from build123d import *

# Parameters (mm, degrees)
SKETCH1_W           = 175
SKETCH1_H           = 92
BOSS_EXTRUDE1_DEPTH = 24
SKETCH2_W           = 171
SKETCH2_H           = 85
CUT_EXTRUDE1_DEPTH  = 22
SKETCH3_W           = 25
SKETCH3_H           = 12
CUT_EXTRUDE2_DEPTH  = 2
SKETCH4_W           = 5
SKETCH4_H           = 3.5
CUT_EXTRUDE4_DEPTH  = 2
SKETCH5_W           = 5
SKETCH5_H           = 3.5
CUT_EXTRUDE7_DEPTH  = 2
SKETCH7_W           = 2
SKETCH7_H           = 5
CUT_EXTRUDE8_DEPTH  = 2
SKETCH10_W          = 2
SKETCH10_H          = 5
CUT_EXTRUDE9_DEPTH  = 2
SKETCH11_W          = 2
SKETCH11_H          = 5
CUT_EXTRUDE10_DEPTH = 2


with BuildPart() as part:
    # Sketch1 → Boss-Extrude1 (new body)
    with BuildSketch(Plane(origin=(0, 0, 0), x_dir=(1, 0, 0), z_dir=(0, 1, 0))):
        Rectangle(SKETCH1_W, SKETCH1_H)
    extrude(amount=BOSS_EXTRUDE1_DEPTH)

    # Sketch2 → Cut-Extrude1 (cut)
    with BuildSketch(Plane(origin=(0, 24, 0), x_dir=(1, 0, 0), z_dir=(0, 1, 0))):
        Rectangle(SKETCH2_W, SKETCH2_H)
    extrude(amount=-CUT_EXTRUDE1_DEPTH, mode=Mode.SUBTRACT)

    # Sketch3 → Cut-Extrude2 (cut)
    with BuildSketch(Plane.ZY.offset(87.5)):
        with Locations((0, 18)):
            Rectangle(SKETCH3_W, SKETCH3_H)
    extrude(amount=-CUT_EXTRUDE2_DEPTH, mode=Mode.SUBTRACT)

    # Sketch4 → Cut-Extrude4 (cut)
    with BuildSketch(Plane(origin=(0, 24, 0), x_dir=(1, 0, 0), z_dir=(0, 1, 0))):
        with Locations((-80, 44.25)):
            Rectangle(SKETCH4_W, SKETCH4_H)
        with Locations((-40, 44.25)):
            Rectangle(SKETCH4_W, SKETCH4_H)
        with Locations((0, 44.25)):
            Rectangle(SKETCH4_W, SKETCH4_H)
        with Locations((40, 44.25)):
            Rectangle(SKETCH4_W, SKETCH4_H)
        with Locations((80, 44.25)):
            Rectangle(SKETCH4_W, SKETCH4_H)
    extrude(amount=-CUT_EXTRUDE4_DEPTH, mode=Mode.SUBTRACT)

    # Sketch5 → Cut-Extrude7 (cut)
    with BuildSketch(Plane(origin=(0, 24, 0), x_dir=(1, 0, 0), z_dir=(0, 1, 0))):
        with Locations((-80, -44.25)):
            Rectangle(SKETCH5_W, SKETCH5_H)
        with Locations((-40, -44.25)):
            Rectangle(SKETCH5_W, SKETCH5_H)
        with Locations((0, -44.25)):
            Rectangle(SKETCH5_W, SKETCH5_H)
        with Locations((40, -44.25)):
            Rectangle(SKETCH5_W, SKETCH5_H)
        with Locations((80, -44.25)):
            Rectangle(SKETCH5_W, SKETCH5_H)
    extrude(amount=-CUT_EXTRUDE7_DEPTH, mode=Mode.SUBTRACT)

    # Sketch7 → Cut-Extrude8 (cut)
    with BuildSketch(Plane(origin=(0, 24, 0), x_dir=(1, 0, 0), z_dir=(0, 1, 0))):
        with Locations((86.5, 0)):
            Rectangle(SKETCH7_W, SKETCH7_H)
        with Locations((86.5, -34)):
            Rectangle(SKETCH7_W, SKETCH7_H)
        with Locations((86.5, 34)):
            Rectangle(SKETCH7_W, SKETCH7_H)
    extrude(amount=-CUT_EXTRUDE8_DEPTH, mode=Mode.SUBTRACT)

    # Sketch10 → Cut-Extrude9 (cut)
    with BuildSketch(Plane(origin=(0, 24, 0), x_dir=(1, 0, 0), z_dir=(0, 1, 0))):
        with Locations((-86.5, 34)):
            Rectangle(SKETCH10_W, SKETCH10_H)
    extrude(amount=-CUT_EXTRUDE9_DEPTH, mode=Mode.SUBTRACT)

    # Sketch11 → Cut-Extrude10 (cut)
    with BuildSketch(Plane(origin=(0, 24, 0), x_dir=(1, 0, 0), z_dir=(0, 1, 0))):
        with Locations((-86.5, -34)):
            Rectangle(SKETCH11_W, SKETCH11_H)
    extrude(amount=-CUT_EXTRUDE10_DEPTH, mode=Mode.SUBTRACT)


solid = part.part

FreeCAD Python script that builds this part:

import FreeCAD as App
import Part
import Sketcher


def add_polygon(sketch, points):
    """Adds a closed chain of lines whose ends are joined by coincident constraints."""
    first, n = sketch.GeometryCount, len(points)
    for a, b in zip(points, points[1:] + points[:1]):
        sketch.addGeometry(Part.LineSegment(App.Vector(*a, 0), App.Vector(*b, 0)), False)
    for i in range(n):
        sketch.addConstraint(Sketcher.Constraint("Coincident", first + i, 2, first + (i + 1) % n, 1))

doc = App.newDocument("Part")
body = doc.addObject("PartDesign::Body", "Body")

# Sketch on XZ plane
sketch1 = body.newObject("Sketcher::SketchObject", "Sketch")
sketch1.AttachmentSupport = (doc.getObject("XZ_Plane"), [""])
sketch1.MapMode = "FlatFace"
add_polygon(sketch1, [(-87.5, -46), (-87.5, 46), (87.5, 46), (87.5, -46)])  # lines 0-3
sketch1.addConstraint(Sketcher.Constraint("Vertical", 0))
sketch1.addConstraint(Sketcher.Constraint("Horizontal", 1))
sketch1.addConstraint(Sketcher.Constraint("Vertical", 2))
sketch1.addConstraint(Sketcher.Constraint("Horizontal", 3))
sketch1.addConstraint(Sketcher.Constraint("Symmetric", 0, 2, 2, 2, -1, 1))
sketch1.addConstraint(Sketcher.Constraint("DistanceX", 1, 1, 1, 2, 175.0))
sketch1.addConstraint(Sketcher.Constraint("DistanceY", 0, 1, 0, 2, 92.0))
pad1 = body.newObject("PartDesign::Pad", "Pad")
pad1.Profile = sketch1
pad1.Length = 24
pad1.Reversed = True

# Sketch on XZ plane
sketch2 = body.newObject("Sketcher::SketchObject", "Sketch001")
sketch2.AttachmentSupport = (doc.getObject("XZ_Plane"), [""])
sketch2.MapMode = "FlatFace"
sketch2.AttachmentOffset = App.Placement(App.Vector(0, 0, -24), App.Rotation())
add_polygon(sketch2, [(-85.5, -42.5), (-85.5, 42.5), (85.5, 42.5), (85.5, -42.5)])  # lines 0-3
sketch2.addConstraint(Sketcher.Constraint("Vertical", 0))
sketch2.addConstraint(Sketcher.Constraint("Horizontal", 1))
sketch2.addConstraint(Sketcher.Constraint("Vertical", 2))
sketch2.addConstraint(Sketcher.Constraint("Horizontal", 3))
sketch2.addConstraint(Sketcher.Constraint("Symmetric", 0, 2, 2, 2, -1, 1))
sketch2.addConstraint(Sketcher.Constraint("DistanceX", 1, 1, 1, 2, 171.0))
sketch2.addConstraint(Sketcher.Constraint("DistanceY", 0, 1, 0, 2, 85.0))
pocket1 = body.newObject("PartDesign::Pocket", "Pocket")
pocket1.Profile = sketch2
pocket1.Length = 22
pocket1.Reversed = True

# Sketch on YZ plane
sketch3 = body.newObject("Sketcher::SketchObject", "Sketch002")
sketch3.AttachmentSupport = (doc.getObject("YZ_Plane"), [""])
sketch3.MapMode = "FlatFace"
sketch3.AttachmentOffset = App.Placement(App.Vector(0, 0, -87.5), App.Rotation())
add_polygon(sketch3, [(24, -12.5), (12, -12.5), (12, 12.5), (24, 12.5)])  # lines 0-3
sketch3.addConstraint(Sketcher.Constraint("Horizontal", 0))
sketch3.addConstraint(Sketcher.Constraint("Vertical", 1))
sketch3.addConstraint(Sketcher.Constraint("Horizontal", 2))
sketch3.addConstraint(Sketcher.Constraint("Vertical", 3))
sketch3.addConstraint(Sketcher.Constraint("DistanceX", 0, 2, 0, 1, 12.0))
sketch3.addConstraint(Sketcher.Constraint("DistanceY", 1, 1, 1, 2, 25.0))
sketch3.addConstraint(Sketcher.Constraint("DistanceX", -1, 1, 0, 2, 12.0))
sketch3.addConstraint(Sketcher.Constraint("DistanceY", 0, 2, -1, 1, 12.5))
pocket2 = body.newObject("PartDesign::Pocket", "Pocket001")
pocket2.Profile = sketch3
pocket2.Length = 2
pocket2.Reversed = True

# Sketch on XZ plane
sketch4 = body.newObject("Sketcher::SketchObject", "Sketch003")
sketch4.AttachmentSupport = (doc.getObject("XZ_Plane"), [""])
sketch4.MapMode = "FlatFace"
sketch4.AttachmentOffset = App.Placement(App.Vector(0, 0, -24), App.Rotation())
add_polygon(sketch4, [(-82.5, -46), (-82.5, -42.5), (-77.5, -42.5), (-77.5, -46)])  # lines 0-3
add_polygon(sketch4, [(-42.5, -46), (-42.5, -42.5), (-37.5, -42.5), (-37.5, -46)])  # lines 4-7
add_polygon(sketch4, [(-2.5, -46), (-2.5, -42.5), (2.5, -42.5), (2.5, -46)])  # lines 8-11
add_polygon(sketch4, [(37.5, -46), (37.5, -42.5), (42.5, -42.5), (42.5, -46)])  # lines 12-15
add_polygon(sketch4, [(77.5, -46), (77.5, -42.5), (82.5, -42.5), (82.5, -46)])  # lines 16-19
sketch4.addConstraint(Sketcher.Constraint("Vertical", 0))
sketch4.addConstraint(Sketcher.Constraint("Horizontal", 1))
sketch4.addConstraint(Sketcher.Constraint("Vertical", 2))
sketch4.addConstraint(Sketcher.Constraint("Horizontal", 3))
sketch4.addConstraint(Sketcher.Constraint("Vertical", 4))
sketch4.addConstraint(Sketcher.Constraint("Horizontal", 5))
sketch4.addConstraint(Sketcher.Constraint("Vertical", 6))
sketch4.addConstraint(Sketcher.Constraint("Horizontal", 7))
sketch4.addConstraint(Sketcher.Constraint("Vertical", 8))
sketch4.addConstraint(Sketcher.Constraint("Horizontal", 9))
sketch4.addConstraint(Sketcher.Constraint("Vertical", 10))
sketch4.addConstraint(Sketcher.Constraint("Horizontal", 11))
sketch4.addConstraint(Sketcher.Constraint("Vertical", 12))
sketch4.addConstraint(Sketcher.Constraint("Horizontal", 13))
sketch4.addConstraint(Sketcher.Constraint("Vertical", 14))
sketch4.addConstraint(Sketcher.Constraint("Horizontal", 15))
sketch4.addConstraint(Sketcher.Constraint("Vertical", 16))
sketch4.addConstraint(Sketcher.Constraint("Horizontal", 17))
sketch4.addConstraint(Sketcher.Constraint("Vertical", 18))
sketch4.addConstraint(Sketcher.Constraint("Horizontal", 19))
sketch4.addConstraint(Sketcher.Constraint("Symmetric", 5, 2, 12, 2, -2))
sketch4.addConstraint(Sketcher.Constraint("Symmetric", 7, 2, 14, 2, -2))
sketch4.addConstraint(Sketcher.Constraint("Symmetric", 1, 2, 16, 2, -2))
sketch4.addConstraint(Sketcher.Constraint("Symmetric", 3, 2, 18, 2, -2))
sketch4.addConstraint(Sketcher.Constraint("Horizontal", 1, 2, 4, 2))
sketch4.addConstraint(Sketcher.Constraint("Horizontal", 3, 2, 6, 2))
sketch4.addConstraint(Sketcher.Constraint("Horizontal", 5, 2, 8, 2))
sketch4.addConstraint(Sketcher.Constraint("Horizontal", 7, 2, 10, 2))
sketch4.addConstraint(Sketcher.Constraint("Equal", 3, 5))
sketch4.addConstraint(Sketcher.Constraint("Equal", 7, 9))
sketch4.addConstraint(Sketcher.Constraint("DistanceX", 1, 1, 1, 2, 5.0))
sketch4.addConstraint(Sketcher.Constraint("DistanceY", 0, 1, 0, 2, 3.5))
sketch4.addConstraint(Sketcher.Constraint("DistanceY", 2, 2, -1, 1, 46.0))
sketch4.addConstraint(Sketcher.Constraint("DistanceX", 1, 2, 4, 2, 35.0))
sketch4.addConstraint(Sketcher.Constraint("DistanceX", 5, 2, 8, 2, 35.0))
sketch4.addConstraint(Sketcher.Constraint("DistanceX", 9, 2, 12, 2, 35.0))
pocket3 = body.newObject("PartDesign::Pocket", "Pocket002")
pocket3.Profile = sketch4
pocket3.Length = 2
pocket3.Reversed = True

# Sketch on XZ plane
sketch5 = body.newObject("Sketcher::SketchObject", "Sketch004")
sketch5.AttachmentSupport = (doc.getObject("XZ_Plane"), [""])
sketch5.MapMode = "FlatFace"
sketch5.AttachmentOffset = App.Placement(App.Vector(0, 0, -24), App.Rotation())
add_polygon(sketch5, [(-82.5, 42.5), (-82.5, 46), (-77.5, 46), (-77.5, 42.5)])  # lines 0-3
add_polygon(sketch5, [(-42.5, 42.5), (-42.5, 46), (-37.5, 46), (-37.5, 42.5)])  # lines 4-7
add_polygon(sketch5, [(-2.5, 42.5), (-2.5, 46), (2.5, 46), (2.5, 42.5)])  # lines 8-11
add_polygon(sketch5, [(37.5, 42.5), (37.5, 46), (42.5, 46), (42.5, 42.5)])  # lines 12-15
add_polygon(sketch5, [(77.5, 42.5), (77.5, 46), (82.5, 46), (82.5, 42.5)])  # lines 16-19
sketch5.addConstraint(Sketcher.Constraint("Vertical", 0))
sketch5.addConstraint(Sketcher.Constraint("Horizontal", 1))
sketch5.addConstraint(Sketcher.Constraint("Vertical", 2))
sketch5.addConstraint(Sketcher.Constraint("Horizontal", 3))
sketch5.addConstraint(Sketcher.Constraint("Vertical", 4))
sketch5.addConstraint(Sketcher.Constraint("Horizontal", 5))
sketch5.addConstraint(Sketcher.Constraint("Vertical", 6))
sketch5.addConstraint(Sketcher.Constraint("Horizontal", 7))
sketch5.addConstraint(Sketcher.Constraint("Vertical", 8))
sketch5.addConstraint(Sketcher.Constraint("Horizontal", 9))
sketch5.addConstraint(Sketcher.Constraint("Vertical", 10))
sketch5.addConstraint(Sketcher.Constraint("Horizontal", 11))
sketch5.addConstraint(Sketcher.Constraint("Vertical", 12))
sketch5.addConstraint(Sketcher.Constraint("Horizontal", 13))
sketch5.addConstraint(Sketcher.Constraint("Vertical", 14))
sketch5.addConstraint(Sketcher.Constraint("Horizontal", 15))
sketch5.addConstraint(Sketcher.Constraint("Vertical", 16))
sketch5.addConstraint(Sketcher.Constraint("Horizontal", 17))
sketch5.addConstraint(Sketcher.Constraint("Vertical", 18))
sketch5.addConstraint(Sketcher.Constraint("Horizontal", 19))
sketch5.addConstraint(Sketcher.Constraint("Symmetric", 5, 2, 12, 2, -2))
sketch5.addConstraint(Sketcher.Constraint("Symmetric", 7, 2, 14, 2, -2))
sketch5.addConstraint(Sketcher.Constraint("Symmetric", 1, 2, 16, 2, -2))
sketch5.addConstraint(Sketcher.Constraint("Symmetric", 3, 2, 18, 2, -2))
sketch5.addConstraint(Sketcher.Constraint("Horizontal", 1, 2, 4, 2))
sketch5.addConstraint(Sketcher.Constraint("Horizontal", 3, 2, 6, 2))
sketch5.addConstraint(Sketcher.Constraint("Horizontal", 5, 2, 8, 2))
sketch5.addConstraint(Sketcher.Constraint("Horizontal", 7, 2, 10, 2))
sketch5.addConstraint(Sketcher.Constraint("Equal", 3, 5))
sketch5.addConstraint(Sketcher.Constraint("Equal", 7, 9))
sketch5.addConstraint(Sketcher.Constraint("DistanceX", 1, 1, 1, 2, 5.0))
sketch5.addConstraint(Sketcher.Constraint("DistanceY", 0, 1, 0, 2, 3.5))
sketch5.addConstraint(Sketcher.Constraint("DistanceY", -1, 1, 0, 2, 46.0))
sketch5.addConstraint(Sketcher.Constraint("DistanceX", 1, 2, 4, 2, 35.0))
sketch5.addConstraint(Sketcher.Constraint("DistanceX", 5, 2, 8, 2, 35.0))
sketch5.addConstraint(Sketcher.Constraint("DistanceX", 9, 2, 12, 2, 35.0))
pocket4 = body.newObject("PartDesign::Pocket", "Pocket003")
pocket4.Profile = sketch5
pocket4.Length = 2
pocket4.Reversed = True

# Sketch on XZ plane
sketch6 = body.newObject("Sketcher::SketchObject", "Sketch005")
sketch6.AttachmentSupport = (doc.getObject("XZ_Plane"), [""])
sketch6.MapMode = "FlatFace"
sketch6.AttachmentOffset = App.Placement(App.Vector(0, 0, -24), App.Rotation())
add_polygon(sketch6, [(85.5, -2.5), (85.5, 2.5), (87.5, 2.5), (87.5, -2.5)])  # lines 0-3
add_polygon(sketch6, [(85.5, 31.5), (85.5, 36.5), (87.5, 36.5), (87.5, 31.5)])  # lines 4-7
add_polygon(sketch6, [(85.5, -36.5), (85.5, -31.5), (87.5, -31.5), (87.5, -36.5)])  # lines 8-11
sketch6.addConstraint(Sketcher.Constraint("Vertical", 0))
sketch6.addConstraint(Sketcher.Constraint("Horizontal", 1))
sketch6.addConstraint(Sketcher.Constraint("Vertical", 2))
sketch6.addConstraint(Sketcher.Constraint("Horizontal", 3))
sketch6.addConstraint(Sketcher.Constraint("Vertical", 4))
sketch6.addConstraint(Sketcher.Constraint("Horizontal", 5))
sketch6.addConstraint(Sketcher.Constraint("Vertical", 6))
sketch6.addConstraint(Sketcher.Constraint("Horizontal", 7))
sketch6.addConstraint(Sketcher.Constraint("Vertical", 8))
sketch6.addConstraint(Sketcher.Constraint("Horizontal", 9))
sketch6.addConstraint(Sketcher.Constraint("Vertical", 10))
sketch6.addConstraint(Sketcher.Constraint("Horizontal", 11))
sketch6.addConstraint(Sketcher.Constraint("Symmetric", 7, 2, 8, 2, -1))
sketch6.addConstraint(Sketcher.Constraint("Symmetric", 5, 2, 10, 2, -1))
sketch6.addConstraint(Sketcher.Constraint("Vertical", 3, 2, 4, 2))
sketch6.addConstraint(Sketcher.Constraint("Vertical", 2, 2, 5, 2))
sketch6.addConstraint(Sketcher.Constraint("Equal", 2, 4))
sketch6.addConstraint(Sketcher.Constraint("DistanceX", 1, 1, 1, 2, 2.0))
sketch6.addConstraint(Sketcher.Constraint("DistanceY", 0, 1, 0, 2, 5.0))
sketch6.addConstraint(Sketcher.Constraint("DistanceY", 0, 2, 4, 2, 34.0))
sketch6.addConstraint(Sketcher.Constraint("DistanceY", 8, 2, 3, 2, 29.0))
sketch6.addConstraint(Sketcher.Constraint("DistanceX", -1, 1, 0, 2, 85.5))
pocket5 = body.newObject("PartDesign::Pocket", "Pocket004")
pocket5.Profile = sketch6
pocket5.Length = 2
pocket5.Reversed = True

# Sketch on XZ plane
sketch7 = body.newObject("Sketcher::SketchObject", "Sketch006")
sketch7.AttachmentSupport = (doc.getObject("XZ_Plane"), [""])
sketch7.MapMode = "FlatFace"
sketch7.AttachmentOffset = App.Placement(App.Vector(0, 0, -24), App.Rotation())
add_polygon(sketch7, [(-87.5, -36.5), (-87.5, -31.5), (-85.5, -31.5), (-85.5, -36.5)])  # lines 0-3
sketch7.addConstraint(Sketcher.Constraint("Vertical", 0))
sketch7.addConstraint(Sketcher.Constraint("Horizontal", 1))
sketch7.addConstraint(Sketcher.Constraint("Vertical", 2))
sketch7.addConstraint(Sketcher.Constraint("Horizontal", 3))
sketch7.addConstraint(Sketcher.Constraint("DistanceX", 1, 1, 1, 2, 2.0))
sketch7.addConstraint(Sketcher.Constraint("DistanceY", 0, 1, 0, 2, 5.0))
sketch7.addConstraint(Sketcher.Constraint("DistanceX", 0, 2, -1, 1, 87.5))
sketch7.addConstraint(Sketcher.Constraint("DistanceY", 0, 2, -1, 1, 31.5))
pocket6 = body.newObject("PartDesign::Pocket", "Pocket005")
pocket6.Profile = sketch7
pocket6.Length = 2
pocket6.Reversed = True

# Sketch on XZ plane
sketch8 = body.newObject("Sketcher::SketchObject", "Sketch007")
sketch8.AttachmentSupport = (doc.getObject("XZ_Plane"), [""])
sketch8.MapMode = "FlatFace"
sketch8.AttachmentOffset = App.Placement(App.Vector(0, 0, -24), App.Rotation())
add_polygon(sketch8, [(-87.5, 31.5), (-87.5, 36.5), (-85.5, 36.5), (-85.5, 31.5)])  # lines 0-3
sketch8.addConstraint(Sketcher.Constraint("Vertical", 0))
sketch8.addConstraint(Sketcher.Constraint("Horizontal", 1))
sketch8.addConstraint(Sketcher.Constraint("Vertical", 2))
sketch8.addConstraint(Sketcher.Constraint("Horizontal", 3))
sketch8.addConstraint(Sketcher.Constraint("DistanceX", 1, 1, 1, 2, 2.0))
sketch8.addConstraint(Sketcher.Constraint("DistanceY", 0, 1, 0, 2, 5.0))
sketch8.addConstraint(Sketcher.Constraint("DistanceX", 0, 2, -1, 1, 87.5))
sketch8.addConstraint(Sketcher.Constraint("DistanceY", -1, 1, 0, 2, 36.5))
pocket7 = body.newObject("PartDesign::Pocket", "Pocket006")
pocket7.Profile = sketch8
pocket7.Length = 2
pocket7.Reversed = True

doc.recompute()
